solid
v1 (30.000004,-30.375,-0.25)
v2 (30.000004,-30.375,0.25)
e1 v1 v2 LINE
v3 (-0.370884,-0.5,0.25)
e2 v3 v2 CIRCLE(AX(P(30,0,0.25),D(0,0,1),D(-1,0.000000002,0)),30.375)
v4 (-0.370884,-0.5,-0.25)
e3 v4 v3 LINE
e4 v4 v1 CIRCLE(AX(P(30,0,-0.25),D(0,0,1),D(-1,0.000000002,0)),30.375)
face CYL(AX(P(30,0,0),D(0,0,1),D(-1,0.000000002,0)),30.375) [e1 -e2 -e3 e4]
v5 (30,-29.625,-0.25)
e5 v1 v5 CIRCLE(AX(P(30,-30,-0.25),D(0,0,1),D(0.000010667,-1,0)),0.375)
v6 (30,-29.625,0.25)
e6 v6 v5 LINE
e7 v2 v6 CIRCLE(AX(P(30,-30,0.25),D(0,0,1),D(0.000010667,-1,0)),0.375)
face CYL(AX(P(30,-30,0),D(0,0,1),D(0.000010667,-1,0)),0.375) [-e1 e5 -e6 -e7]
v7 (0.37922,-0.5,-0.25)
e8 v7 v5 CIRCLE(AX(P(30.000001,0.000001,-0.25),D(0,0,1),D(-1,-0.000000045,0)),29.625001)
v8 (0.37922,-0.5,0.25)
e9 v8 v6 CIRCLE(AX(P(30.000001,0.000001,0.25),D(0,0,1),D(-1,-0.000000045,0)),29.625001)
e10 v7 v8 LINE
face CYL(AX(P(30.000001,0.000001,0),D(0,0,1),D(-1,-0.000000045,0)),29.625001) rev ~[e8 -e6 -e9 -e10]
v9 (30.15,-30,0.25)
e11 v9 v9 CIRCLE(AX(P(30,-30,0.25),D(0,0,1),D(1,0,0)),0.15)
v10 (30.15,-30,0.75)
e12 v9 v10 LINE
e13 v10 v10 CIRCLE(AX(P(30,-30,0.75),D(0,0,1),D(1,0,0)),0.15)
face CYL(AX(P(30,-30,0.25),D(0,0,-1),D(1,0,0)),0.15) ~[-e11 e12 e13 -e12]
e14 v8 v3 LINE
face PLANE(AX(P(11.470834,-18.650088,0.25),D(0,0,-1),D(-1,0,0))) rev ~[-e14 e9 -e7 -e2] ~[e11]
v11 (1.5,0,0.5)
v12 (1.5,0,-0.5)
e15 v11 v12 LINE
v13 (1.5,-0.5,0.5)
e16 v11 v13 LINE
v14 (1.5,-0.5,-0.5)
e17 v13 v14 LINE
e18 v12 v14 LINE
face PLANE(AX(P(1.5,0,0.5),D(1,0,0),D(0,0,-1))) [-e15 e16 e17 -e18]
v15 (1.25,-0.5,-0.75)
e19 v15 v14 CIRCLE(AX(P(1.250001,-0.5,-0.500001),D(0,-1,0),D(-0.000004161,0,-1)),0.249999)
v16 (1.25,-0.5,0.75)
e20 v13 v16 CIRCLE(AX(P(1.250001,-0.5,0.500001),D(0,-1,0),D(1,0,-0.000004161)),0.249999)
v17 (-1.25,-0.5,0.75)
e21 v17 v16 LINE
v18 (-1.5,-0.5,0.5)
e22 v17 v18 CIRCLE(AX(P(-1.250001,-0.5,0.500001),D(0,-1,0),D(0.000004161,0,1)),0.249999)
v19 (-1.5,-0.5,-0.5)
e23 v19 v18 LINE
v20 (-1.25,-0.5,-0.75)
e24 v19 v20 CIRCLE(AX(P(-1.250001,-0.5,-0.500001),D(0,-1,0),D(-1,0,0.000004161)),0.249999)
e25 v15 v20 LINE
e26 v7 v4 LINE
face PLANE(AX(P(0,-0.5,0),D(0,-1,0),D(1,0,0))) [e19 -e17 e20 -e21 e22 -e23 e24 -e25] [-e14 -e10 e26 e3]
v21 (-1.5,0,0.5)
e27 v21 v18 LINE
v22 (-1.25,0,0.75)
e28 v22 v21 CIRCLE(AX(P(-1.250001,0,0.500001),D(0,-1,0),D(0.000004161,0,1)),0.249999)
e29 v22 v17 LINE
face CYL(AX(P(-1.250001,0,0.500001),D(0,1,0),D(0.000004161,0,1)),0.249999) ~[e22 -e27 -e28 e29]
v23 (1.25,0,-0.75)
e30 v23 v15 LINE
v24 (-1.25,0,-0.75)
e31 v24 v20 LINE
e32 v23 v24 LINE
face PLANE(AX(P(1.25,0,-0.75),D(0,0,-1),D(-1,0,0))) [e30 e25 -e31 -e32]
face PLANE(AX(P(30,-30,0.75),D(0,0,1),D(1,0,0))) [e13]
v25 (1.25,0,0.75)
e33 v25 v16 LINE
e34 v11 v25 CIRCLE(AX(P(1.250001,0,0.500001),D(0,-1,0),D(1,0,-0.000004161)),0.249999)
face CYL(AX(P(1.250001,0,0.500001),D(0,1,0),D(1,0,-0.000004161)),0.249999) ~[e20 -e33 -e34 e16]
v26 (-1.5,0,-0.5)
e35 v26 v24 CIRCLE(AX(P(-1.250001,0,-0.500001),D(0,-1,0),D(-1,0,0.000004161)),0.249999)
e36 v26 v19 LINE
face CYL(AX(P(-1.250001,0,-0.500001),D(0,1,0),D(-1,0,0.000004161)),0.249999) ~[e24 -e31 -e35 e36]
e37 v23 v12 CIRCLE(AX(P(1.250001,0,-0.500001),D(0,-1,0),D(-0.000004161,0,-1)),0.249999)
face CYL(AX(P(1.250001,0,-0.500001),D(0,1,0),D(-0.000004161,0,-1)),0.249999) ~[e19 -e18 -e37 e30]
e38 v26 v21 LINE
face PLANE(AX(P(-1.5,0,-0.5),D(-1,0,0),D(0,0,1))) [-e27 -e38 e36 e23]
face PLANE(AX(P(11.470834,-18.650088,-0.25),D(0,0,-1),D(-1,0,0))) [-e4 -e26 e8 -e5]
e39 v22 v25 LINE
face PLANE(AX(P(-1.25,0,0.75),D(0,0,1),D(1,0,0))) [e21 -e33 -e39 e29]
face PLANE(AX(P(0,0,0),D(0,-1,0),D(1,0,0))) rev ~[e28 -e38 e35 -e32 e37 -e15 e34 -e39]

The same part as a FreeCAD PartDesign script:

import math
import FreeCAD as App
import Part
import Sketcher

doc = App.newDocument("Part")
body = doc.addObject("PartDesign::Body", "Body")

sketch1 = body.newObject("Sketcher::SketchObject", "Sketch")
sketch1.AttachmentSupport = (doc.getObject("XY_Plane"), [""])
sketch1.MapMode = "FlatFace"
sketch1.addGeometry([
    Part.LineSegment(App.Vector(0.375, 0, 0), App.Vector(-0.375, 0, 0)),
    Part.ArcOfCircle(Part.Circle(App.Vector(30, 0, 0), App.Vector(0, 0, 1), 30.375), math.radians(180), math.radians(270.000008)),
    Part.ArcOfCircle(Part.Circle(App.Vector(30, -30, 0), App.Vector(0, 0, 1), 0.375), math.radians(-89.999389), math.radians(90)),
    Part.ArcOfCircle(Part.Circle(App.Vector(30.000001, 0.000001, 0), App.Vector(0, 0, 1), 29.625001), math.radians(-179.999997), math.radians(-90.000003)),
], False)
sketch1.addConstraint([
    Sketcher.Constraint("Coincident", 0, 2, 1, 1),
    Sketcher.Constraint("Coincident", 1, 2, 2, 1),
    Sketcher.Constraint("Tangent", 2, 2, 3, 2),
    Sketcher.Constraint("Coincident", 3, 1, 0, 1),
    Sketcher.Constraint("Horizontal", 0),
    Sketcher.Constraint("Coincident", 3, 3, 1, 3),
    Sketcher.Constraint("Symmetric", 0, 2, 3, 1, -1, 1),
    Sketcher.Constraint("PointOnObject", 1, 3, -1),
    Sketcher.Constraint("Vertical", 1, 3, 2, 3),
    Sketcher.Constraint("DistanceX", -1, 1, 1, 3, 30.0),
    Sketcher.Constraint("Radius", 1, 30.375),
    Sketcher.Constraint("DistanceX", -1, 1, 1, 2, 30.000004),
])
pad1 = body.newObject("PartDesign::Pad", "Pad")
pad1.Profile = sketch1
pad1.Length = 0.5
pad1.Midplane = True

sketch2 = body.newObject("Sketcher::SketchObject", "Sketch001")
sketch2.AttachmentSupport = (doc.getObject("XZ_Plane"), [""])
sketch2.MapMode = "FlatFace"
sketch2.addGeometry([
    Part.ArcOfCircle(Part.Circle(App.Vector(-1.250001, 0.500001, 0), App.Vector(0, 0, 1), 0.249999), math.radians(89.999762), math.radians(180.000238)),
    Part.LineSegment(App.Vector(-1.5, 0.5, 0), App.Vector(-1.5, -0.5, 0)),
    Part.ArcOfCircle(Part.Circle(App.Vector(-1.250001, -0.500001, 0), App.Vector(0, 0, 1), 0.249999), math.radians(179.999762), math.radians(270.000238)),
    Part.LineSegment(App.Vector(-1.25, -0.75, 0), App.Vector(1.25, -0.75, 0)),
    Part.ArcOfCircle(Part.Circle(App.Vector(1.250001, -0.500001, 0), App.Vector(0, 0, 1), 0.249999), math.radians(-90.000238), math.radians(0.000238)),
    Part.LineSegment(App.Vector(1.5, -0.5, 0), App.Vector(1.5, 0.5, 0)),
    Part.ArcOfCircle(Part.Circle(App.Vector(1.250001, 0.500001, 0), App.Vector(0, 0, 1), 0.249999), math.radians(-0.000238), math.radians(90.000238)),
    Part.LineSegment(App.Vector(1.25, 0.75, 0), App.Vector(-1.25, 0.75, 0)),
], False)
sketch2.addConstraint([
    Sketcher.Constraint("Coincident", 0, 2, 1, 1),
    Sketcher.Constraint("Coincident", 1, 2, 2, 1),
    Sketcher.Constraint("Coincident", 2, 2, 3, 1),
    Sketcher.Constraint("Coincident", 3, 2, 4, 1),
    Sketcher.Constraint("Coincident", 4, 2, 5, 1),
    Sketcher.Constraint("Coincident", 5, 2, 6, 1),
    Sketcher.Constraint("Coincident", 6, 2, 7, 1),
    Sketcher.Constraint("Coincident", 7, 2, 0, 1),
    Sketcher.Constraint("Vertical", 1),
    Sketcher.Constraint("Horizontal", 3),
    Sketcher.Constraint("Vertical", 5),
    Sketcher.Constraint("Horizontal", 7),
    Sketcher.Constraint("Equal", 0, 2),
    Sketcher.Constraint("Equal", 2, 4),
    Sketcher.Constraint("Equal", 4, 6),
    Sketcher.Constraint("Symmetric", 0, 3, 4, 3, -1, 1),
    Sketcher.Constraint("Horizontal", 6, 3, 0, 2),
    Sketcher.Constraint("Horizontal", 4, 3, 1, 2),
    Sketcher.Constraint("Horizontal", 1, 2, 4, 2),
    Sketcher.Constraint("Horizontal", 0, 2, 5, 2),
    Sketcher.Constraint("Vertical", 0, 3, 2, 2),
    Sketcher.Constraint("Vertical", 6, 3, 3, 2),
    Sketcher.Constraint("Vertical", 3, 2, 6, 2),
    Sketcher.Constraint("Vertical", 2, 2, 7, 2),
    Sketcher.Constraint("DistanceY", 1, 2, 1, 1, 1.0),
    Sketcher.Constraint("Radius", 0, 0.249999),
    Sketcher.Constraint("DistanceX", 3, 1, 3, 2, 2.5),
])
pad2 = body.newObject("PartDesign::Pad", "Pad001")
pad2.Profile = sketch2
pad2.Length = 0.5

sketch3 = body.newObject("Sketcher::SketchObject", "Sketch002")
sketch3.AttachmentSupport = (doc.getObject("XY_Plane"), [""])
sketch3.MapMode = "FlatFace"
sketch3.AttachmentOffset = App.Placement(App.Vector(0, 0, 0.25), App.Rotation())
sketch3.addGeometry(Part.Circle(App.Vector(30, -30, 0), App.Vector(0, 0, 1), 0.15), False)
sketch3.addConstraint([
    Sketcher.Constraint("Diameter", 0, 0.3),
    Sketcher.Constraint("DistanceX", -1, 1, 0, 3, 30.0),
    Sketcher.Constraint("DistanceY", 0, 3, -1, 1, 30.0),
])
pad3 = body.newObject("PartDesign::Pad", "Pad002")
pad3.Profile = sketch3
pad3.Length = 0.5

doc.recompute()
